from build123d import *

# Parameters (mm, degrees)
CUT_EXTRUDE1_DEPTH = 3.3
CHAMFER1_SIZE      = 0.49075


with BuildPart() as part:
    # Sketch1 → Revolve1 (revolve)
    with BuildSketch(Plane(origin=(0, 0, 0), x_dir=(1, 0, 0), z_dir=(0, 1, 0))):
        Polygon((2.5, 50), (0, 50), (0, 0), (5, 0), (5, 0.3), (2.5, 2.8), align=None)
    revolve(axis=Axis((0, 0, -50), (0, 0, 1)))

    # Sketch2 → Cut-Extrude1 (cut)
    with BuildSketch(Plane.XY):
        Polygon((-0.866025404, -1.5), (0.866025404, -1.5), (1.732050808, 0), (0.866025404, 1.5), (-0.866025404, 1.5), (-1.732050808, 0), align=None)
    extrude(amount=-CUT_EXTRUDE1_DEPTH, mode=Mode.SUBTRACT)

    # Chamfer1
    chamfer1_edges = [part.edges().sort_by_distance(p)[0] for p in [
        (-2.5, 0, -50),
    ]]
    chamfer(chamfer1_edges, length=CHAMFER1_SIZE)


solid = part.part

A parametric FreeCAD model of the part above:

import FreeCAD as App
import Part
import Sketcher

V = App.Vector
Q = App.Units.Quantity


def edges_at(feature, points):
    """Names of the edges that pass closest to the given points."""
    edges = feature.Shape.Edges
    near = lambda p: min(range(len(edges)), key=lambda i: edges[i].distToShape(Part.Vertex(*p))[0])
    return sorted({f"Edge{near(p) + 1}" for p in points})


def add_polygon(sketch, points):
    """Adds a closed chain of lines whose ends are joined by coincident constraints."""
    first, n = sketch.GeometryCount, len(points)
    for a, b in zip(points, points[1:] + points[:1]):
        sketch.addGeometry(Part.LineSegment(App.Vector(*a, 0), App.Vector(*b, 0)), False)
    for i in range(n):
        sketch.addConstraint(Sketcher.Constraint("Coincident", first + i, 2, first + (i + 1) % n, 1))

doc = App.newDocument("Part")
body = doc.addObject("PartDesign::Body", "Body")

sketch1 = body.newObject("Sketcher::SketchObject", "Sketch")
sketch1.AttachmentSupport = (doc.getObject("XZ_Plane"), [""])
sketch1.MapMode = "FlatFace"
add_polygon(sketch1, [(2.5, -50), (0, -50), (0, 0), (5, 0), (5, -0.3), (2.5, -2.8)])
sketch1.addConstraint([
    Sketcher.Constraint("Horizontal", 0),
    Sketcher.Constraint("Vertical", 1),
    Sketcher.Constraint("Horizontal", 2),
    Sketcher.Constraint("Vertical", 3),
    Sketcher.Constraint("Vertical", 5),
    Sketcher.Constraint("Coincident", 1, 2, -1, 1),
    Sketcher.Constraint("DistanceX", 2, 1, 2, 2, 5.0),
    Sketcher.Constraint("DistanceY", 1, 1, 1, 2, 50.0),
    Sketcher.Constraint("Angle", 4, Q("-135 deg")),
    Sketcher.Constraint("DistanceX", 0, 2, 0, 1, 2.5),
    Sketcher.Constraint("DistanceY", 3, 2, 3, 1, 0.3),
])
revolution = body.newObject("PartDesign::Revolution", "Revolution")
revolution.Profile = sketch1
revolution.ReferenceAxis = (sketch1, ["V_Axis"])
revolution.Angle = 360

sketch2 = body.newObject("Sketcher::SketchObject", "Sketch001")
sketch2.AttachmentSupport = (doc.getObject("XY_Plane"), [""])
sketch2.MapMode = "FlatFace"
add_polygon(sketch2, [(-0.866025, -1.5), (0.866025, -1.5), (1.732051, 0), (0.866025, 1.5), (-0.866025, 1.5), (-1.732051, 0)])
sketch2.addConstraint([
    Sketcher.Constraint("Horizontal", 0),
    Sketcher.Constraint("Horizontal", 3),
    Sketcher.Constraint("Symmetric", 0, 2, 3, 2, -1, 1),
    Sketcher.Constraint("Symmetric", 1, 2, 4, 2, -1, 1),
    Sketcher.Constraint("PointOnObject", 1, 2, -1),
    Sketcher.Constraint("Parallel", 2, 5),
    Sketcher.Constraint("Vertical", 0, 2, 2, 2),
    Sketcher.Constraint("Angle", 1, Q("60 deg")),
    Sketcher.Constraint("DistanceY", 0, 2, 2, 2, 3.0),
    Sketcher.Constraint("DistanceX", 0, 1, 0, 2, 1.732051),
])
pocket1 = body.newObject("PartDesign::Pocket", "Pocket")
pocket1.Profile = sketch2
pocket1.Length = 3.3
doc.recompute()

chamfer = body.newObject("PartDesign::Chamfer", "Chamfer")
chamfer.Base = (pocket1, edges_at(pocket1, [(-2.5, 0, -50)]))
chamfer.Size = 0.49075

doc.recompute()
